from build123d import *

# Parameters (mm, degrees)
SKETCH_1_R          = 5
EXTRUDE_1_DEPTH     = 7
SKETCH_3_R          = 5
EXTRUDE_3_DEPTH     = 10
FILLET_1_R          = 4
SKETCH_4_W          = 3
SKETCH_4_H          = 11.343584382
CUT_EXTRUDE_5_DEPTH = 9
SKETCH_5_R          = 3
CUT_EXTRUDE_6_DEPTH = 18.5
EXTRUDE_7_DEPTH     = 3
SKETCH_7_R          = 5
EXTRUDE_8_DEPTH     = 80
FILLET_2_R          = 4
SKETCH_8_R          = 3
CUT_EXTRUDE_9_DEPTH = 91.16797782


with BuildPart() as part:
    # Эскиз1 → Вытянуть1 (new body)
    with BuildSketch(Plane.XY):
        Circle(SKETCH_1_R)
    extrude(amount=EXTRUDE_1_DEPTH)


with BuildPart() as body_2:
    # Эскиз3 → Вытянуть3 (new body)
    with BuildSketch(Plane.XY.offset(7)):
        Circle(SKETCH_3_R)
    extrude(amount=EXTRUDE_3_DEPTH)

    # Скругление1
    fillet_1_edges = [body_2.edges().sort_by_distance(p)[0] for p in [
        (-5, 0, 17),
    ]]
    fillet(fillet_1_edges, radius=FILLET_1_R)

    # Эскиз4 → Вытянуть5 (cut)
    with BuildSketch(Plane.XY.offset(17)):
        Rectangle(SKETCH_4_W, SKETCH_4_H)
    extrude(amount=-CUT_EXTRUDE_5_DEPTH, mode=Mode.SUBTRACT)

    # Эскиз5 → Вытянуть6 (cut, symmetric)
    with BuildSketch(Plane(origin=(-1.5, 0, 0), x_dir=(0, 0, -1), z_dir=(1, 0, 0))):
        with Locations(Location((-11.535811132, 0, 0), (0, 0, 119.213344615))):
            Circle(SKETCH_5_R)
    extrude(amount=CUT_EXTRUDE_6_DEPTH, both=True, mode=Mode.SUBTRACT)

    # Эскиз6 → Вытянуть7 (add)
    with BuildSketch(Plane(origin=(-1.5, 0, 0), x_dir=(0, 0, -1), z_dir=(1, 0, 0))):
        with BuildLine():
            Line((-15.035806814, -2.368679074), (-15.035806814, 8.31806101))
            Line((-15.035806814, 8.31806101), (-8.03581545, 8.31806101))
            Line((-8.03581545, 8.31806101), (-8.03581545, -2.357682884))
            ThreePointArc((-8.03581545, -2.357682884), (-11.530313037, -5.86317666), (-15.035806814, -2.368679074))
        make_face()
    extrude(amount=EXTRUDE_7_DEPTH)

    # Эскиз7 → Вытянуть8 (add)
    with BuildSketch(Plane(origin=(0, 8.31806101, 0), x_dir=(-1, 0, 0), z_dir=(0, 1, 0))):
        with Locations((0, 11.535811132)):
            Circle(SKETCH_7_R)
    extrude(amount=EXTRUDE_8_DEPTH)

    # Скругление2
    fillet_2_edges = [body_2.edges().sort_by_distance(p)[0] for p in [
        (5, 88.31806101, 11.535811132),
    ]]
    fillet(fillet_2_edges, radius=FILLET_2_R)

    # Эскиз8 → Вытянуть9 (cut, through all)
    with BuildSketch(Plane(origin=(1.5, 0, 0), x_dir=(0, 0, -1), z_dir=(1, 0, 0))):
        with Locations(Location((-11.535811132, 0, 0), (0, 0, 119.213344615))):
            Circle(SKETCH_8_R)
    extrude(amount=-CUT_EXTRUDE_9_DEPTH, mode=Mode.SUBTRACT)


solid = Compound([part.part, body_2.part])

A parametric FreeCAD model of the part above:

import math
import FreeCAD as App
import Part
import Sketcher

V = App.Vector
Q = App.Units.Quantity


def edges_at(feature, points):
    """Names of the edges that pass closest to the given points."""
    edges = feature.Shape.Edges
    near = lambda p: min(range(len(edges)), key=lambda i: edges[i].distToShape(Part.Vertex(*p))[0])
    return sorted({f"Edge{near(p) + 1}" for p in points})


def add_polygon(sketch, points):
    """Adds a closed chain of lines whose ends are joined by coincident constraints."""
    first, n = sketch.GeometryCount, len(points)
    for a, b in zip(points, points[1:] + points[:1]):
        sketch.addGeometry(Part.LineSegment(App.Vector(*a, 0), App.Vector(*b, 0)), False)
    for i in range(n):
        sketch.addConstraint(Sketcher.Constraint("Coincident", first + i, 2, first + (i + 1) % n, 1))

doc = App.newDocument("Part")
params = doc.addObject("Spreadsheet::Sheet", "Params")
for row, (alias, value) in enumerate([
    ("sketch1_diameter", "10 mm"),
    ("pad1_length", "7 mm"),
    ("sketch2_diameter", "10 mm"),
    ("pad2_length", "10 mm"),
    ("fillet_radius", "4 mm"),
    ("sketch3_width", "3 mm"),
    ("pocket1_length", "9 mm"),
    ("sketch4_diameter", "6 mm"),
    ("pocket2_length", "37 mm"),
    ("sketch5_radius", "3.5 mm"),
    ("pad3_length", "3 mm"),
    ("sketch6_diameter", "10 mm"),
    ("pad4_length", "80 mm"),
    ("fillet2_radius", "4 mm"),
    ("sketch7_diameter", "6 mm"),
], start=1):
    params.set(f"A{row}", alias)
    params.set(f"B{row}", "=" + value)
    params.setAlias(f"B{row}", alias)

body = doc.addObject("PartDesign::Body", "Body")

sketch1 = body.newObject("Sketcher::SketchObject", "Sketch")
sketch1.AttachmentSupport = (doc.getObject("XY_Plane"), [""])
sketch1.MapMode = "FlatFace"
sketch1.addGeometry(Part.Circle(V(0, 0, 0), V(0, 0, 1), 5), False)
sketch1.addConstraint(Sketcher.Constraint("Coincident", 0, 3, -1, 1))
sketch1.addConstraint(Sketcher.Constraint("Diameter", 0, Q("10 mm")))
sketch1.setExpression("Constraints[1]", "Params.sketch1_diameter")
pad1 = body.newObject("PartDesign::Pad", "Pad")
pad1.Profile = sketch1
pad1.setExpression("Length", "Params.pad1_length")
body2 = doc.addObject("PartDesign::Body", "Body001")

sketch2 = body2.newObject("Sketcher::SketchObject", "Sketch001")
sketch2.AttachmentSupport = (doc.getObject("XY_Plane001"), [""])
sketch2.MapMode = "FlatFace"
sketch2.AttachmentOffset = App.Placement(V(0, 0, 7), App.Rotation())
sketch2.addGeometry(Part.Circle(V(0, 0, 0), V(0, 0, 1), 5), False)
sketch2.addConstraint(Sketcher.Constraint("Coincident", 0, 3, -1, 1))
sketch2.addConstraint(Sketcher.Constraint("Diameter", 0, Q("10 mm")))
sketch2.setExpression("Constraints[1]", "Params.sketch2_diameter")
pad2 = body2.newObject("PartDesign::Pad", "Pad001")
pad2.Profile = sketch2
pad2.setExpression("Length", "Params.pad2_length")
doc.recompute()

fillet = body2.newObject("PartDesign::Fillet", "Fillet")
fillet.Base = (pad2, edges_at(pad2, [(-5, 0, 17)]))
fillet.setExpression("Radius", "Params.fillet_radius")

sketch3 = body2.newObject("Sketcher::SketchObject", "Sketch002")
sketch3.AttachmentSupport = (doc.getObject("XY_Plane001"), [""])
sketch3.MapMode = "FlatFace"
sketch3.AttachmentOffset = App.Placement(V(0, 0, 17), App.Rotation())
add_polygon(sketch3, [(-1.5, 5.7), (-1.5, -5.7), (1.5, -5.7), (1.5, 5.7)])
sketch3.addConstraint(Sketcher.Constraint("Vertical", 0))
sketch3.addConstraint(Sketcher.Constraint("Horizontal", 1))
sketch3.addConstraint(Sketcher.Constraint("Vertical", 2))
sketch3.addConstraint(Sketcher.Constraint("Horizontal", 3))
sketch3.addConstraint(Sketcher.Constraint("Symmetric", 0, 2, 2, 2, -1, 1))
sketch3.addConstraint(Sketcher.Constraint("DistanceX", 1, 1, 1, 2, Q("3 mm")))
sketch3.addConstraint(Sketcher.Constraint("DistanceY", 0, 2, 0, 1, Q("11.343584 mm")))
sketch3.setExpression("Constraints[9]", "Params.sketch3_width")
pocket1 = body2.newObject("PartDesign::Pocket", "Pocket")
pocket1.Profile = sketch3
pocket1.setExpression("Length", "Params.pocket1_length")

sketch4 = body2.newObject("Sketcher::SketchObject", "Sketch003")
sketch4.AttachmentSupport = (doc.getObject("YZ_Plane001"), [""])
sketch4.MapMode = "FlatFace"
sketch4.AttachmentOffset = App.Placement(V(0, 0, -1.5), App.Rotation())
sketch4.addGeometry(Part.Circle(V(0, 11.5, 0), V(0, 0, 1), 3), False)
sketch4.addConstraint(Sketcher.Constraint("PointOnObject", 0, 3, -2))
sketch4.addConstraint(Sketcher.Constraint("Diameter", 0, Q("6 mm")))
sketch4.addConstraint(Sketcher.Constraint("DistanceY", -1, 1, 0, 3, Q("11.535811 mm")))
sketch4.setExpression("Constraints[1]", "Params.sketch4_diameter")
pocket2 = body2.newObject("PartDesign::Pocket", "Pocket001")
pocket2.Profile = sketch4
pocket2.setExpression("Length", "Params.pocket2_length")
pocket2.Midplane = True

sketch5 = body2.newObject("Sketcher::SketchObject", "Sketch004")
sketch5.AttachmentSupport = (doc.getObject("YZ_Plane001"), [""])
sketch5.MapMode = "FlatFace"
sketch5.AttachmentOffset = App.Placement(V(0, 0, -1.5), App.Rotation())
sketch5.addGeometry(Part.LineSegment(V(8.3, 15, 0), V(-2.4, 15, 0)), False)
sketch5.addGeometry(Part.ArcOfCircle(Part.Circle(V(-2.4, 11.5, 0), V(0, 0, 1), 3.5), math.radians(90), math.radians(270)), False)
sketch5.addGeometry(Part.LineSegment(V(-2.4, 8, 0), V(8.3, 8, 0)), False)
sketch5.addGeometry(Part.LineSegment(V(8.3, 8, 0), V(8.3, 15, 0)), False)
sketch5.addConstraint(Sketcher.Constraint("Coincident", 0, 2, 1, 1))
sketch5.addConstraint(Sketcher.Constraint("Coincident", 1, 2, 2, 1))
sketch5.addConstraint(Sketcher.Constraint("Coincident", 2, 2, 3, 1))
sketch5.addConstraint(Sketcher.Constraint("Coincident", 3, 2, 0, 1))
sketch5.addConstraint(Sketcher.Constraint("Horizontal", 0))
sketch5.addConstraint(Sketcher.Constraint("Horizontal", 2))
sketch5.addConstraint(Sketcher.Constraint("Vertical", 3))
sketch5.addConstraint(Sketcher.Constraint("Radius", 1, Q("3.5 mm")))
sketch5.addConstraint(Sketcher.Constraint("DistanceX", 0, 2, 0, 1, Q("10.68674 mm")))
sketch5.addConstraint(Sketcher.Constraint("DistanceX", 0, 2, 1, 3, Q("0.005498 mm")))
sketch5.addConstraint(Sketcher.Constraint("DistanceX", 1, 3, 1, 2, Q("0.005498 mm")))
sketch5.addConstraint(Sketcher.Constraint("DistanceX", 1, 3, -1, 1, Q("2.363181 mm")))
sketch5.addConstraint(Sketcher.Constraint("DistanceY", -1, 1, 1, 3, Q("11.535811 mm")))
sketch5.setExpression("Constraints[7]", "Params.sketch5_radius")
pad3 = body2.newObject("PartDesign::Pad", "Pad002")
pad3.Profile = sketch5
pad3.setExpression("Length", "Params.pad3_length")

sketch6 = body2.newObject("Sketcher::SketchObject", "Sketch005")
sketch6.AttachmentSupport = (doc.getObject("XZ_Plane001"), [""])
sketch6.MapMode = "FlatFace"
sketch6.AttachmentOffset = App.Placement(V(0, 0, -8.318061), App.Rotation())
sketch6.addGeometry(Part.Circle(V(0, 12, 0), V(0, 0, 1), 5), False)
sketch6.addConstraint(Sketcher.Constraint("PointOnObject", 0, 3, -2))
sketch6.addConstraint(Sketcher.Constraint("Diameter", 0, Q("10 mm")))
sketch6.addConstraint(Sketcher.Constraint("DistanceY", -1, 1, 0, 3, Q("11.535811 mm")))
sketch6.setExpression("Constraints[1]", "Params.sketch6_diameter")
pad4 = body2.newObject("PartDesign::Pad", "Pad003")
pad4.Profile = sketch6
pad4.setExpression("Length", "Params.pad4_length")
pad4.Reversed = True
doc.recompute()

fillet2 = body2.newObject("PartDesign::Fillet", "Fillet001")
fillet2.Base = (pad4, edges_at(pad4, [(5, 88.318, 11.536)]))
fillet2.setExpression("Radius", "Params.fillet2_radius")

sketch7 = body2.newObject("Sketcher::SketchObject", "Sketch006")
sketch7.AttachmentSupport = (doc.getObject("YZ_Plane001"), [""])
sketch7.MapMode = "FlatFace"
sketch7.AttachmentOffset = App.Placement(V(0, 0, 1.5), App.Rotation())
sketch7.addGeometry(Part.Circle(V(0, 11.5, 0), V(0, 0, 1), 3), False)
sketch7.addConstraint(Sketcher.Constraint("PointOnObject", 0, 3, -2))
sketch7.addConstraint(Sketcher.Constraint("Diameter", 0, Q("6 mm")))
sketch7.addConstraint(Sketcher.Constraint("DistanceY", -1, 1, 0, 3, Q("11.535811 mm")))
sketch7.setExpression("Constraints[1]", "Params.sketch7_diameter")
pocket3 = body2.newObject("PartDesign::Pocket", "Pocket002")
pocket3.Profile = sketch7
pocket3.Type = "ThroughAll"

doc.recompute()
